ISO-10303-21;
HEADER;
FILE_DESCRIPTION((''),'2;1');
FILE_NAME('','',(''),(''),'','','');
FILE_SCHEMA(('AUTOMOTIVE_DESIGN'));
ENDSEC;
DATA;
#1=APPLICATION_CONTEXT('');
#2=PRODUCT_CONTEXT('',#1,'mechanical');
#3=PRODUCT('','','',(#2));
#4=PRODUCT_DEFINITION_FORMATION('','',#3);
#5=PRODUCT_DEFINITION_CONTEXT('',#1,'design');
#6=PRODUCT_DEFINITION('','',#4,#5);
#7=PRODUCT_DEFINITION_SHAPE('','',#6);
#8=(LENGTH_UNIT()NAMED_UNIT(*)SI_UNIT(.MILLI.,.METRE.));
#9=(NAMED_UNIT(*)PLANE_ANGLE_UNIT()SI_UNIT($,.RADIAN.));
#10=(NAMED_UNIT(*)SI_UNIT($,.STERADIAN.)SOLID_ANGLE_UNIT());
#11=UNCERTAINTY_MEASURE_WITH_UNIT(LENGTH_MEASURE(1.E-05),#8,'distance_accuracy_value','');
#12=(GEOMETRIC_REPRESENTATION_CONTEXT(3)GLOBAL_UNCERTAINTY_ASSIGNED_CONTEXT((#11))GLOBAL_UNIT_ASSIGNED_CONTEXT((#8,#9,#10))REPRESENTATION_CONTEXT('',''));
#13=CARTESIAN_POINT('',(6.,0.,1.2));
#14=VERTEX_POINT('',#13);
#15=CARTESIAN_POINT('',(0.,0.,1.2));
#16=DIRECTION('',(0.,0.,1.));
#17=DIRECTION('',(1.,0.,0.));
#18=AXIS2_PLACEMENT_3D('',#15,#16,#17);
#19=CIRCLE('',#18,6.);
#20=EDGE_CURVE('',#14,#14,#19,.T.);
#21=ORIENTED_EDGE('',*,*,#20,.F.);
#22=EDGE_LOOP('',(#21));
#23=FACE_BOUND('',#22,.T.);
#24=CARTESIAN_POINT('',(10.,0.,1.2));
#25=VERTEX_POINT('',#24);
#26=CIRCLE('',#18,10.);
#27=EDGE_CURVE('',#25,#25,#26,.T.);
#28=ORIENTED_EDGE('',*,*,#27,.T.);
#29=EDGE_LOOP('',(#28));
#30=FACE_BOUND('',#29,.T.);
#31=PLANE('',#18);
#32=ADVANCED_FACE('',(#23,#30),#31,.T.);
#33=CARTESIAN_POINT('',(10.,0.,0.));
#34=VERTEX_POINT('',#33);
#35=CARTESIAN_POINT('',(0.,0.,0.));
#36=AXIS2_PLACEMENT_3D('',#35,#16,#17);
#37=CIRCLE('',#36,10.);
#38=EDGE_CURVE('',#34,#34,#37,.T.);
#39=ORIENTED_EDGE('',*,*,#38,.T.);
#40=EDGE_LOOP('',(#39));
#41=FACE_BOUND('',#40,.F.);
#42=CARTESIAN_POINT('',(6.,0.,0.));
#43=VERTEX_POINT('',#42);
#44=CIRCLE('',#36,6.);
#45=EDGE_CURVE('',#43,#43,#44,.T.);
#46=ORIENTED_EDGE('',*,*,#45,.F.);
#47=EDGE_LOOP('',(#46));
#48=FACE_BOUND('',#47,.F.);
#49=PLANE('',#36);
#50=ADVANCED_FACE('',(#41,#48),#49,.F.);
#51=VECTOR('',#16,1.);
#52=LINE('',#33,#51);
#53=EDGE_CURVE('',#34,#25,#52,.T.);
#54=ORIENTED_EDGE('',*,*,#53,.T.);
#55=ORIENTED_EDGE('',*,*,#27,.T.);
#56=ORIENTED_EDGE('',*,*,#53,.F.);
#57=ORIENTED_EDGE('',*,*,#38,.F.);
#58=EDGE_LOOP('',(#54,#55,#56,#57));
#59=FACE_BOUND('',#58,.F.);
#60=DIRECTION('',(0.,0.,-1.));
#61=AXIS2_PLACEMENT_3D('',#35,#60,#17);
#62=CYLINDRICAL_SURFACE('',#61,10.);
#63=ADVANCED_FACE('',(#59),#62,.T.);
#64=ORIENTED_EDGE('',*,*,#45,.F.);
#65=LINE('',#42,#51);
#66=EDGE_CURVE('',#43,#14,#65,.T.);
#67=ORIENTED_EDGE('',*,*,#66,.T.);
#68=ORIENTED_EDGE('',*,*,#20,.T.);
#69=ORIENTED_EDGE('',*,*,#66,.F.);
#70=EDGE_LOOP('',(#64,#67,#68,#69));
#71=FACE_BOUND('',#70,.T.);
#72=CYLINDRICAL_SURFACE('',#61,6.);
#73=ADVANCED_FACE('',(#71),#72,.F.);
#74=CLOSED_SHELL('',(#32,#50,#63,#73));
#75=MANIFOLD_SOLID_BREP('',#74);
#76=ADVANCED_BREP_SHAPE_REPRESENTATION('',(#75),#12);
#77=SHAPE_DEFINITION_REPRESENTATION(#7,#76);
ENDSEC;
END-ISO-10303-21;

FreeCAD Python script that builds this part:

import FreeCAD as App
import Part
import Sketcher
Q = App.Units.Quantity

doc = App.newDocument("Part")
body = doc.addObject("PartDesign::Body", "Body")

# Sketch on XY plane
sketch1 = body.newObject("Sketcher::SketchObject", "Sketch")
sketch1.AttachmentSupport = (doc.getObject("XY_Plane"), [""])
sketch1.MapMode = "FlatFace"
sketch1.addGeometry([
    Part.Circle(App.Vector(0, 0, 0), App.Vector(0, 0, 1), 10),
    Part.Circle(App.Vector(0, 0, 0), App.Vector(0, 0, 1), 6),
], False)
sketch1.addConstraint([
    Sketcher.Constraint("Coincident", 0, 3, -1, 1),
    Sketcher.Constraint("Coincident", 1, 3, -1, 1),
    Sketcher.Constraint("Diameter", 0, Q("20 mm")),
    Sketcher.Constraint("Diameter", 1, Q("12 mm")),
])
pad1 = body.newObject("PartDesign::Pad", "Pad")
pad1.Profile = sketch1
pad1.Length = 1.2

doc.recompute()
